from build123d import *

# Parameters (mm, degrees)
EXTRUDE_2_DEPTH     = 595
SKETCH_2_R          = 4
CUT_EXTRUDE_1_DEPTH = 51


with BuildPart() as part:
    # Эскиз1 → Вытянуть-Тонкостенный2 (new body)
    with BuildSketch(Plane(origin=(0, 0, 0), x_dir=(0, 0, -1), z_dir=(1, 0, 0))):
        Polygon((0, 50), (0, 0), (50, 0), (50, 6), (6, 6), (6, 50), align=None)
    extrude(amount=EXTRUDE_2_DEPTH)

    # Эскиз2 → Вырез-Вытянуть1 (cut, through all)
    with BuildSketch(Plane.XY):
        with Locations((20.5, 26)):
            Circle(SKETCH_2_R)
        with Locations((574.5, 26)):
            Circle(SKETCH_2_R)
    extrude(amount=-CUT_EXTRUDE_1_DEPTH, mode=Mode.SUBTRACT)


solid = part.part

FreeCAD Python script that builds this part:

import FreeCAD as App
import Part
import Sketcher

V = App.Vector
Q = App.Units.Quantity

doc = App.newDocument("Part")
body = doc.addObject("PartDesign::Body", "Body")

# Sketch on YZ plane
sketch1 = body.newObject("Sketcher::SketchObject", "Sketch")
sketch1.AttachmentSupport = (doc.getObject("YZ_Plane"), [""])
sketch1.MapMode = "FlatFace"
sketch1.addGeometry([
    Part.LineSegment(V(50, 0, 0), V(0, 0, 0)),  # 0
    Part.LineSegment(V(0, 0, 0), V(0, -50, 0)),  # 1
    Part.LineSegment(V(0, -50, 0), V(6, -50, 0)),  # 2
    Part.LineSegment(V(6, -50, 0), V(6, -6, 0)),  # 3
    Part.LineSegment(V(6, -6, 0), V(50, -6, 0)),  # 4
    Part.LineSegment(V(50, -6, 0), V(50, 0, 0)),  # 5
], False)
sketch1.addConstraint([
    Sketcher.Constraint("Coincident", 0, 2, 1, 1),
    Sketcher.Constraint("Coincident", 1, 2, 2, 1),
    Sketcher.Constraint("Coincident", 2, 2, 3, 1),
    Sketcher.Constraint("Coincident", 3, 2, 4, 1),
    Sketcher.Constraint("Coincident", 4, 2, 5, 1),
    Sketcher.Constraint("Coincident", 5, 2, 0, 1),
    Sketcher.Constraint("Horizontal", 0),
    Sketcher.Constraint("Vertical", 1),
    Sketcher.Constraint("Horizontal", 2),
    Sketcher.Constraint("Vertical", 3),
    Sketcher.Constraint("Horizontal", 4),
    Sketcher.Constraint("Vertical", 5),
    Sketcher.Constraint("Coincident", 0, 2, -1, 1),
    Sketcher.Constraint("Equal", 0, 1),
    Sketcher.Constraint("Equal", 4, 3),
    Sketcher.Constraint("DistanceX", 0, 2, 0, 1, Q("50 mm")),
    Sketcher.Constraint("DistanceX", 2, 1, 2, 2, Q("6 mm")),
])
pad1 = body.newObject("PartDesign::Pad", "Pad")
pad1.Profile = sketch1
pad1.Length = 595

# Sketch on XY plane
sketch2 = body.newObject("Sketcher::SketchObject", "Sketch001")
sketch2.AttachmentSupport = (doc.getObject("XY_Plane"), [""])
sketch2.MapMode = "FlatFace"
sketch2.addGeometry([
    Part.Circle(V(20.5, 26, 0), V(0, 0, 1), 4),
    Part.Circle(V(574.5, 26, 0), V(0, 0, 1), 4),
], False)
sketch2.addConstraint([
    Sketcher.Constraint("Equal", 0, 1),
    Sketcher.Constraint("Horizontal", 0, 3, 1, 3),
    Sketcher.Constraint("Diameter", 0, Q("8 mm")),
    Sketcher.Constraint("DistanceY", -1, 1, 0, 3, Q("26 mm")),
    Sketcher.Constraint("DistanceX", 0, 3, 1, 3, Q("554 mm")),
    Sketcher.Constraint("DistanceX", -1, 1, 0, 3, Q("20.5 mm")),
])
pocket1 = body.newObject("PartDesign::Pocket", "Pocket")
pocket1.Profile = sketch2
pocket1.Type = "ThroughAll"

doc.recompute()
